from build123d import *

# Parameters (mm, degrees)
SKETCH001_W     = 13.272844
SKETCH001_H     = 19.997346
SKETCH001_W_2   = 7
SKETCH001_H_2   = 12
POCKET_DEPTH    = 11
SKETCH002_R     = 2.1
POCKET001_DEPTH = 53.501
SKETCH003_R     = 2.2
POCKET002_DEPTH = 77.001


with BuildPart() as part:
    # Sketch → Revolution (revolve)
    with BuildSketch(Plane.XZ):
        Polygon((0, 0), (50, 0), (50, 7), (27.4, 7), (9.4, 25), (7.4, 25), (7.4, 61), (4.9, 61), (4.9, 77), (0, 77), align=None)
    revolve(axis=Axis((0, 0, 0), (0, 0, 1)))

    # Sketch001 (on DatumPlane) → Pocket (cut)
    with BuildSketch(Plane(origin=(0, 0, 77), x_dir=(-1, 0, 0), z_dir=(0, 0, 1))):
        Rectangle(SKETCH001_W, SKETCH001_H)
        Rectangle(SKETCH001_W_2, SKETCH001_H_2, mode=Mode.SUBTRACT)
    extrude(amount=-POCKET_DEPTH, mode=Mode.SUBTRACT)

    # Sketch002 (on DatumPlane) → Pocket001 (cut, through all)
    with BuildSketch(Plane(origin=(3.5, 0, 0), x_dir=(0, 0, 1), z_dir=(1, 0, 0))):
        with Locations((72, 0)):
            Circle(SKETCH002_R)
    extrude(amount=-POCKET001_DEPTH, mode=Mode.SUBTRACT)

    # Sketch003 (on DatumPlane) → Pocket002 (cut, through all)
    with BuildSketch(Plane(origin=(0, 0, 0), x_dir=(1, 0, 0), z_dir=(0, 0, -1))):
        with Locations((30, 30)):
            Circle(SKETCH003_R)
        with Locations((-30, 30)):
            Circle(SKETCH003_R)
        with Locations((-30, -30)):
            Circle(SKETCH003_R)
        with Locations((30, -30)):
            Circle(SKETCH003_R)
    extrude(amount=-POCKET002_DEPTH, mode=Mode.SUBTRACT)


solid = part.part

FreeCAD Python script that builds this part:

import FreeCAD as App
import Part
import Sketcher
from FreeCAD import Vector
Q = App.Units.Quantity

doc = App.newDocument("Part")
params = doc.addObject("Spreadsheet::Sheet", "Params")
for row, (alias, value) in enumerate([
    ("sketch1_width", "50 mm"),
    ("sketch1_width2", "2 mm"),
    ("sketch1_height", "7 mm"),
    ("sketch1_height2", "36 mm"),
    ("sketch1_height3", "16 mm"),
    ("revolution_angle", "360 deg"),
    ("sketch2_width", "7 mm"),
    ("sketch2_height", "12 mm"),
    ("pocket1_length", "11 mm"),
    ("sketch3_diameter", "4.2 mm"),
    ("sketch4_diameter", "4.4 mm"),
], start=1):
    params.set(f"A{row}", alias)
    params.set(f"B{row}", "=" + value)
    params.setAlias(f"B{row}", alias)

body = doc.addObject("PartDesign::Body", "Body")

sketch1 = body.newObject("Sketcher::SketchObject", "Sketch")
sketch1.AttachmentSupport = (doc.getObject("XZ_Plane"), [""])
sketch1.MapMode = "FlatFace"
sketch1.addGeometry([
    Part.LineSegment(Vector(0, 0, 0), Vector(50, 0, 0)),
    Part.LineSegment(Vector(50, 0, 0), Vector(50, 7, 0)),
    Part.LineSegment(Vector(50, 7, 0), Vector(27.4, 7, 0)),
    Part.LineSegment(Vector(27.4, 7, 0), Vector(9.4, 25, 0)),
    Part.LineSegment(Vector(9.4, 25, 0), Vector(7.4, 25, 0)),
    Part.LineSegment(Vector(7.4, 25, 0), Vector(7.4, 61, 0)),
    Part.LineSegment(Vector(7.4, 61, 0), Vector(4.9, 61, 0)),
    Part.LineSegment(Vector(4.9, 61, 0), Vector(4.9, 77, 0)),
    Part.LineSegment(Vector(4.9, 77, 0), Vector(0, 77, 0)),
    Part.LineSegment(Vector(0, 77, 0), Vector(0, 0, 0)),
], False)
sketch1.addConstraint([
    Sketcher.Constraint("Coincident", 0, 2, 1, 1),
    Sketcher.Constraint("Coincident", 1, 2, 2, 1),
    Sketcher.Constraint("Coincident", 2, 2, 3, 1),
    Sketcher.Constraint("Coincident", 3, 2, 4, 1),
    Sketcher.Constraint("Coincident", 4, 2, 5, 1),
    Sketcher.Constraint("Coincident", 5, 2, 6, 1),
    Sketcher.Constraint("Coincident", 6, 2, 7, 1),
    Sketcher.Constraint("Coincident", 7, 2, 8, 1),
    Sketcher.Constraint("Coincident", 8, 2, 9, 1),
    Sketcher.Constraint("Coincident", 9, 2, 0, 1),
    Sketcher.Constraint("Horizontal", 0),
    Sketcher.Constraint("Vertical", 1),
    Sketcher.Constraint("Horizontal", 2),
    Sketcher.Constraint("Horizontal", 4),
    Sketcher.Constraint("Vertical", 5),
    Sketcher.Constraint("Horizontal", 6),
    Sketcher.Constraint("Vertical", 7),
    Sketcher.Constraint("Horizontal", 8),
    Sketcher.Constraint("Vertical", 9),
    Sketcher.Constraint("Coincident", 9, 2, -1, 1),
    Sketcher.Constraint("DistanceX", 0, 1, 0, 2, Q("50 mm")),
    Sketcher.Constraint("DistanceX", 4, 2, 4, 1, Q("2 mm")),
    Sketcher.Constraint("DistanceY", 1, 1, 1, 2, Q("7 mm")),
    Sketcher.Constraint("DistanceY", 5, 1, 5, 2, Q("36 mm")),
    Sketcher.Constraint("DistanceY", 7, 1, 7, 2, Q("16 mm")),
    Sketcher.Constraint("DistanceY", 9, 2, 9, 1, Q("77 mm")),
    Sketcher.Constraint("Angle", 3, Q("135 deg")),
    Sketcher.Constraint("DistanceX", 2, 2, 2, 1, Q("22.6 mm")),
    Sketcher.Constraint("DistanceX", 6, 2, 6, 1, Q("2.5 mm")),
])
sketch1.setExpression("Constraints[20]", "Params.sketch1_width")
sketch1.setExpression("Constraints[21]", "Params.sketch1_width2")
sketch1.setExpression("Constraints[22]", "Params.sketch1_height")
sketch1.setExpression("Constraints[23]", "Params.sketch1_height2")
sketch1.setExpression("Constraints[24]", "Params.sketch1_height3")
revolution = body.newObject("PartDesign::Revolution", "Revolution")
revolution.Profile = sketch1
revolution.ReferenceAxis = (sketch1, ["V_Axis"])
revolution.setExpression("Angle", "Params.revolution_angle")

sketch2 = body.newObject("Sketcher::SketchObject", "Sketch001")
sketch2.AttachmentSupport = (doc.getObject("XY_Plane"), [""])
sketch2.MapMode = "FlatFace"
sketch2.AttachmentOffset = App.Placement(Vector(0, 0, 77), App.Rotation())
sketch2.addGeometry([
    Part.LineSegment(Vector(7, -10, 0), Vector(7, 10, 0)),
    Part.LineSegment(Vector(7, 10, 0), Vector(-7, 10, 0)),
    Part.LineSegment(Vector(-7, 10, 0), Vector(-7, -10, 0)),
    Part.LineSegment(Vector(-7, -10, 0), Vector(7, -10, 0)),
    Part.LineSegment(Vector(-4, 6, 0), Vector(4, 6, 0)),
    Part.LineSegment(Vector(4, 6, 0), Vector(4, -6, 0)),
    Part.LineSegment(Vector(4, -6, 0), Vector(-4, -6, 0)),
    Part.LineSegment(Vector(-4, -6, 0), Vector(-4, 6, 0)),
], False)
sketch2.addConstraint([
    Sketcher.Constraint("Coincident", 0, 2, 1, 1),
    Sketcher.Constraint("Coincident", 1, 2, 2, 1),
    Sketcher.Constraint("Coincident", 2, 2, 3, 1),
    Sketcher.Constraint("Coincident", 3, 2, 0, 1),
    Sketcher.Constraint("Coincident", 4, 2, 5, 1),
    Sketcher.Constraint("Coincident", 5, 2, 6, 1),
    Sketcher.Constraint("Coincident", 6, 2, 7, 1),
    Sketcher.Constraint("Coincident", 7, 2, 4, 1),
    Sketcher.Constraint("Vertical", 0),
    Sketcher.Constraint("Horizontal", 1),
    Sketcher.Constraint("Vertical", 2),
    Sketcher.Constraint("Horizontal", 3),
    Sketcher.Constraint("Horizontal", 4),
    Sketcher.Constraint("Vertical", 5),
    Sketcher.Constraint("Horizontal", 6),
    Sketcher.Constraint("Vertical", 7),
    Sketcher.Constraint("Symmetric", 0, 2, 2, 2, -1, 1),
    Sketcher.Constraint("Symmetric", 4, 2, 6, 2, -1, 1),
    Sketcher.Constraint("DistanceX", 4, 1, 4, 2, Q("7 mm")),
    Sketcher.Constraint("DistanceY", 5, 2, 5, 1, Q("12 mm")),
    Sketcher.Constraint("DistanceX", 1, 2, 1, 1, Q("13.272844 mm")),
    Sketcher.Constraint("DistanceY", 0, 1, 0, 2, Q("19.997346 mm")),
])
sketch2.setExpression("Constraints[18]", "Params.sketch2_width")
sketch2.setExpression("Constraints[19]", "Params.sketch2_height")
pocket1 = body.newObject("PartDesign::Pocket", "Pocket")
pocket1.Profile = sketch2
pocket1.setExpression("Length", "Params.pocket1_length")

sketch3 = body.newObject("Sketcher::SketchObject", "Sketch002")
sketch3.AttachmentSupport = (doc.getObject("YZ_Plane"), [""])
sketch3.MapMode = "FlatFace"
sketch3.AttachmentOffset = App.Placement(Vector(0, 0, 3.5), App.Rotation())
sketch3.addGeometry(Part.Circle(Vector(0, 72, 0), Vector(0, 0, 1), 2.1), False)
sketch3.addConstraint([
    Sketcher.Constraint("PointOnObject", 0, 3, -2),
    Sketcher.Constraint("Diameter", 0, Q("4.2 mm")),
    Sketcher.Constraint("DistanceY", -1, 1, 0, 3, Q("72 mm")),
])
sketch3.setExpression("Constraints[1]", "Params.sketch3_diameter")
pocket2 = body.newObject("PartDesign::Pocket", "Pocket001")
pocket2.Profile = sketch3
pocket2.Type = "ThroughAll"

sketch4 = body.newObject("Sketcher::SketchObject", "Sketch003")
sketch4.AttachmentSupport = (doc.getObject("XY_Plane"), [""])
sketch4.MapMode = "FlatFace"
sketch4.addGeometry([
    Part.Circle(Vector(30, -30, 0), Vector(0, 0, 1), 2.2),
    Part.Circle(Vector(-30, -30, 0), Vector(0, 0, 1), 2.2),
    Part.Circle(Vector(-30, 30, 0), Vector(0, 0, 1), 2.2),
    Part.Circle(Vector(30, 30, 0), Vector(0, 0, 1), 2.2),
], False)
sketch4.addConstraint([
    Sketcher.Constraint("Equal", 0, 1),
    Sketcher.Constraint("Equal", 1, 2),
    Sketcher.Constraint("Equal", 2, 3),
    Sketcher.Constraint("Symmetric", 0, 3, 2, 3, -1, 1),
    Sketcher.Constraint("Symmetric", 1, 3, 3, 3, -1, 1),
    Sketcher.Constraint("Symmetric", 0, 3, 1, 3, -2),
    Sketcher.Constraint("Diameter", 0, Q("4.4 mm")),
    Sketcher.Constraint("DistanceX", -1, 1, 0, 3, Q("30 mm")),
    Sketcher.Constraint("DistanceY", 0, 3, -1, 1, Q("30 mm")),
])
sketch4.setExpression("Constraints[6]", "Params.sketch4_diameter")
pocket3 = body.newObject("PartDesign::Pocket", "Pocket002")
pocket3.Profile = sketch4
pocket3.Type = "ThroughAll"
pocket3.Reversed = True

doc.recompute()
